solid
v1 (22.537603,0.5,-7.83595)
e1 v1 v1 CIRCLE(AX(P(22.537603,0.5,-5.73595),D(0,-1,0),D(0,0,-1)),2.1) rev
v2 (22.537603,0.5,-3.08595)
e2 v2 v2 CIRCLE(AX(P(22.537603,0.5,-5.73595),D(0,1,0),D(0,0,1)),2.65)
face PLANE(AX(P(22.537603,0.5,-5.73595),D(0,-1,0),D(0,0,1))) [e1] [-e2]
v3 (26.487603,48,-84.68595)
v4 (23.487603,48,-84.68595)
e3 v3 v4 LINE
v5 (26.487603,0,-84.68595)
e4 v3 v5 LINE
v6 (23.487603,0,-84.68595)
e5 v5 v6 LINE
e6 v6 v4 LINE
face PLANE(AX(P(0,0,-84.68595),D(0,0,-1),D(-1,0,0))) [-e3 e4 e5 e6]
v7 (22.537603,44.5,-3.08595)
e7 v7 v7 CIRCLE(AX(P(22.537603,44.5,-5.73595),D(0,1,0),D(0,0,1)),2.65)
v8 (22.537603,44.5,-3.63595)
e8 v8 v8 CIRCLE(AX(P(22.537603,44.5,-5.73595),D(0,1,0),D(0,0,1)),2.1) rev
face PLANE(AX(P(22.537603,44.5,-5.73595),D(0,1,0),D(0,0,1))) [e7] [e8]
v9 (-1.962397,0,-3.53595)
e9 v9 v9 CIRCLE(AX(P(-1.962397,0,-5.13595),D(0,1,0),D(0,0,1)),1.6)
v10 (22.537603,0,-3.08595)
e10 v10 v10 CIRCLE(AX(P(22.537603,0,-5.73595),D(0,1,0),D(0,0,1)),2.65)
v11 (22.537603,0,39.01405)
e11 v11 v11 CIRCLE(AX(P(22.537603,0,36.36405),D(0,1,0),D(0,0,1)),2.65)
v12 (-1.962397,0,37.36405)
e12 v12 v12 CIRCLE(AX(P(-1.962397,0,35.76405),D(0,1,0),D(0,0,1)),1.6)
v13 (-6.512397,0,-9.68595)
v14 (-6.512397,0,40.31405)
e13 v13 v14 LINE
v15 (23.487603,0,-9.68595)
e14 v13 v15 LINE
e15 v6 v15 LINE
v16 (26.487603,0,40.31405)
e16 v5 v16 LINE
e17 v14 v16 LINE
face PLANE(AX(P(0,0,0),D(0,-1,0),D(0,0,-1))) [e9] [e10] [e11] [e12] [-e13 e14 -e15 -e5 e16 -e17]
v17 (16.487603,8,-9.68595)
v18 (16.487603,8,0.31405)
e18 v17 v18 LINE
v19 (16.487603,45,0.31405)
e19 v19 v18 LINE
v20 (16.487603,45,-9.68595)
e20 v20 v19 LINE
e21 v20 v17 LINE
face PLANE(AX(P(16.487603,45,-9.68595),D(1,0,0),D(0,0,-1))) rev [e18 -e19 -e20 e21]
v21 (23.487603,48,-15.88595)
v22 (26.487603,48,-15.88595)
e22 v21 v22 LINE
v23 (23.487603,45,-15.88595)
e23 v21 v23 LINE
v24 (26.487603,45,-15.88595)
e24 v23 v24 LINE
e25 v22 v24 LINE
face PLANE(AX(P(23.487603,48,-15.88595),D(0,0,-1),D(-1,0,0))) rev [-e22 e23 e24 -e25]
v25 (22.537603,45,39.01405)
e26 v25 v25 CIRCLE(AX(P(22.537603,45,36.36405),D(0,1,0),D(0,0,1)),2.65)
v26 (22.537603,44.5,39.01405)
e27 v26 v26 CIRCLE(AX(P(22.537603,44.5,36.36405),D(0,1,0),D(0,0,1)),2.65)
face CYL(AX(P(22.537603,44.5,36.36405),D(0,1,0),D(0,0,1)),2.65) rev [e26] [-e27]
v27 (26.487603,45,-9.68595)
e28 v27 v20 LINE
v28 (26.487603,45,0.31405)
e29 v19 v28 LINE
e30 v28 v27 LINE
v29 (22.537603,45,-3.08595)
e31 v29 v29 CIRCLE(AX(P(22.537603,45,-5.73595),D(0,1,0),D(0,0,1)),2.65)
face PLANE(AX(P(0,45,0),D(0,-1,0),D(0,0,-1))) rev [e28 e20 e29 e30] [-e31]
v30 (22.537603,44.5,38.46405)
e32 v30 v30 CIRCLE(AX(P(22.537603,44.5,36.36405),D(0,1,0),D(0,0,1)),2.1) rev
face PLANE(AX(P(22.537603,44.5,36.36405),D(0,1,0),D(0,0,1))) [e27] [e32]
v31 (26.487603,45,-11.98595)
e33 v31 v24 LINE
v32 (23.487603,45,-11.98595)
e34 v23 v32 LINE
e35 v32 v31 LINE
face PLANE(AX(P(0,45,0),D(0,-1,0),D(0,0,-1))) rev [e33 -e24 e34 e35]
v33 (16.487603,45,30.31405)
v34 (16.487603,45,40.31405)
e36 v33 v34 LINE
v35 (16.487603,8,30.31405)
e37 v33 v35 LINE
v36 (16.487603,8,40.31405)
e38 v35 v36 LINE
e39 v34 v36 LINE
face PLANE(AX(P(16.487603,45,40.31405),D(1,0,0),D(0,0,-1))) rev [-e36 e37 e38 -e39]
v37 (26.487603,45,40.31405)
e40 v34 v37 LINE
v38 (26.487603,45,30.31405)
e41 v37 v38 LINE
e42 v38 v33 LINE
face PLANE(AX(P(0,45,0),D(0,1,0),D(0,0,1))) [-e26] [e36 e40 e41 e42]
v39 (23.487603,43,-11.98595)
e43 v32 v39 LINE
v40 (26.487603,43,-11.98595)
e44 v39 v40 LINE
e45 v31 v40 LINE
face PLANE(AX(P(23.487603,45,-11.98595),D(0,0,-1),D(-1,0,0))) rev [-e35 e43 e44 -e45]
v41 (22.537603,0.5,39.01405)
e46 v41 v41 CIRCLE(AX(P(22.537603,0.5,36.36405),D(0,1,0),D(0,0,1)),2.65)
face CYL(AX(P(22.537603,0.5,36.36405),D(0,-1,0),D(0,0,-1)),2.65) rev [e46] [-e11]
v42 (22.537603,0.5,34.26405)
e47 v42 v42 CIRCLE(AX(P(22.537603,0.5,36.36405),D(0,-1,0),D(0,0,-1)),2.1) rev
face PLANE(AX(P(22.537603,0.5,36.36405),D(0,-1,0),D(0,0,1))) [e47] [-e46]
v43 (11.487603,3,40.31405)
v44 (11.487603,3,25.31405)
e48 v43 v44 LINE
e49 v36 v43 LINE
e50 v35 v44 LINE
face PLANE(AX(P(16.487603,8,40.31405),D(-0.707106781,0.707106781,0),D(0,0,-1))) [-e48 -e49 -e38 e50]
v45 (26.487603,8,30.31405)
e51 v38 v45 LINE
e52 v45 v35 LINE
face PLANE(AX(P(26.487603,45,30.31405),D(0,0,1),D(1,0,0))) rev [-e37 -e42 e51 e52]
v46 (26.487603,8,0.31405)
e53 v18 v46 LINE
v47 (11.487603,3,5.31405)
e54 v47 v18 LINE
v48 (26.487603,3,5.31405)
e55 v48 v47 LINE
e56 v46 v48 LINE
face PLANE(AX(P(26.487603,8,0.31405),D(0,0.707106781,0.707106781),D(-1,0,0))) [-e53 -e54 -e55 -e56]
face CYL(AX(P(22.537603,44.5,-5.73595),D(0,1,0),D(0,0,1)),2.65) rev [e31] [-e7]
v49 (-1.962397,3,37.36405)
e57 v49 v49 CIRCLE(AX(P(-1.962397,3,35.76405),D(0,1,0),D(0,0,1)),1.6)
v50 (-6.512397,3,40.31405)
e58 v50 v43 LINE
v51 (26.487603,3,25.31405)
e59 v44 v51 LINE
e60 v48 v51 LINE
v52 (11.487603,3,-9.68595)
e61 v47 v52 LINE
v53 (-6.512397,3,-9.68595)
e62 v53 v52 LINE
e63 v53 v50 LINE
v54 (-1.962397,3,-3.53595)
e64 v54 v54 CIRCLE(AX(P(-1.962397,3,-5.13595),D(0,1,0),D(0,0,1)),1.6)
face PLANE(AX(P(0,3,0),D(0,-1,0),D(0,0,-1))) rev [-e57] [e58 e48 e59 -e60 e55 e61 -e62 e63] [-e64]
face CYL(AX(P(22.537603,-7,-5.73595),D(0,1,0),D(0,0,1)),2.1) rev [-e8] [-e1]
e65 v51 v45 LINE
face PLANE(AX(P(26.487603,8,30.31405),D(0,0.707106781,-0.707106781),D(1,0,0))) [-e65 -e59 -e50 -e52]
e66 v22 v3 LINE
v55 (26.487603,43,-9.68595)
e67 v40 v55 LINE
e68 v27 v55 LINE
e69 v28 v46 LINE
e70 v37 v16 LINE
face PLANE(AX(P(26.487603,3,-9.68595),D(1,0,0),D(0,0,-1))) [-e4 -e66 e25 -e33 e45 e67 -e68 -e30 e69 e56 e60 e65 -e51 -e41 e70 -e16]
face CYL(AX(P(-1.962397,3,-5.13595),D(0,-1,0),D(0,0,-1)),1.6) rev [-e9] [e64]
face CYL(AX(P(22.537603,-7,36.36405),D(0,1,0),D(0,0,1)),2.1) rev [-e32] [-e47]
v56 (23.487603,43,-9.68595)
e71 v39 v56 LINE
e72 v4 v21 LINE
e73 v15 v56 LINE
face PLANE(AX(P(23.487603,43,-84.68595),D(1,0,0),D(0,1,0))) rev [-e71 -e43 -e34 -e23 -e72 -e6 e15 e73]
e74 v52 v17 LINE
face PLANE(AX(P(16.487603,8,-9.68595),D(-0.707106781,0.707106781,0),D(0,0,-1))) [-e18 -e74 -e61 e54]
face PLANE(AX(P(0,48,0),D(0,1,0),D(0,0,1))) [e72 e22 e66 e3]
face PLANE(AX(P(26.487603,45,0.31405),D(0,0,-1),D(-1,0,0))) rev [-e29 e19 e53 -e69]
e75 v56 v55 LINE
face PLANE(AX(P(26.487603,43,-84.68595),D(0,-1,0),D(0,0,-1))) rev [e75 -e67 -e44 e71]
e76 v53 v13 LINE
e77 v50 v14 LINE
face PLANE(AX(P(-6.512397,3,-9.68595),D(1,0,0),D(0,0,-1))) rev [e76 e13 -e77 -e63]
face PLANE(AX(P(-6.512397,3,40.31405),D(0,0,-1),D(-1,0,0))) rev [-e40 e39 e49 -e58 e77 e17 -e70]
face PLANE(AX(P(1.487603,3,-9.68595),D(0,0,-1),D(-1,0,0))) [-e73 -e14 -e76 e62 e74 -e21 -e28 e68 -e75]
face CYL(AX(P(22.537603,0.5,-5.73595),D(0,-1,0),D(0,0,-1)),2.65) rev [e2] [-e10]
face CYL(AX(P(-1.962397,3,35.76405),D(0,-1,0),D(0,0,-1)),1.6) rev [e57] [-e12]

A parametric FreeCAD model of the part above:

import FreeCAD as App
import Part
import Sketcher
from FreeCAD import Vector


def edges_at(feature, points):
    """Names of the edges that pass closest to the given points."""
    edges = feature.Shape.Edges
    near = lambda p: min(range(len(edges)), key=lambda i: edges[i].distToShape(Part.Vertex(*p))[0])
    return sorted({f"Edge{near(p) + 1}" for p in points})


def add_polygon(sketch, points):
    """Adds a closed chain of lines whose ends are joined by coincident constraints."""
    first, n = sketch.GeometryCount, len(points)
    for a, b in zip(points, points[1:] + points[:1]):
        sketch.addGeometry(Part.LineSegment(App.Vector(*a, 0), App.Vector(*b, 0)), False)
    for i in range(n):
        sketch.addConstraint(Sketcher.Constraint("Coincident", first + i, 2, first + (i + 1) % n, 1))

doc = App.newDocument("Part")
params = doc.addObject("Spreadsheet::Sheet", "Params")
for row, (alias, value) in enumerate([
    ("sketch1_diameter", "3.2 mm"),
    ("sketch1_width", "33 mm"),
    ("sketch1_height", "50 mm"),
    ("pad1_length", "3 mm"),
    ("sketch2_width", "10 mm"),
    ("pad2_length", "42 mm"),
    ("chamfer_size", "5 mm"),
    ("sketch3_diameter", "4.2 mm"),
    ("pocket1_length", "52 mm"),
    ("sketch4_diameter", "5.3 mm"),
    ("pocket2_length", "0.5 mm"),
    ("sketch5_width", "3 mm"),
    ("sketch5_height", "43 mm"),
    ("pad3_length", "75 mm"),
    ("sketch6_width", "3 mm"),
    ("sketch6_height", "72.7 mm"),
    ("pad4_length", "2 mm"),
    ("sketch7_width", "3 mm"),
    ("sketch7_height", "68.8 mm"),
    ("pad5_length", "3 mm"),
], start=1):
    params.set(f"A{row}", alias)
    params.set(f"B{row}", "=" + value)
    params.setAlias(f"B{row}", alias)

body = doc.addObject("PartDesign::Body", "Body")

sketch1 = doc.addObject("Sketcher::SketchObject", "Sketch")
body.addObject(sketch1)
sketch1.AttachmentSupport = (doc.XZ_Plane, [""])
sketch1.MapMode = "FlatFace"
add_polygon(sketch1, [(26.5, -9.7), (-6.5, -9.7), (-6.5, 40.3), (26.5, 40.3)])
sketch1.addGeometry(Part.Circle(Vector(-2, 35.8, 0), Vector(0, 0, 1), 1.6), False)
sketch1.addGeometry(Part.Circle(Vector(-2, -5.1, 0), Vector(0, 0, 1), 1.6), False)
sketch1.addConstraint(Sketcher.Constraint("Horizontal", 0))
sketch1.addConstraint(Sketcher.Constraint("Vertical", 1))
sketch1.addConstraint(Sketcher.Constraint("Horizontal", 2))
sketch1.addConstraint(Sketcher.Constraint("Vertical", 3))
sketch1.addConstraint(Sketcher.Constraint("Equal", 4, 5))
sketch1.addConstraint(Sketcher.Constraint("Vertical", 4, 3, 5, 3))
sketch1.addConstraint(Sketcher.Constraint("Diameter", 4, 3.2))
sketch1.addConstraint(Sketcher.Constraint("DistanceX", 0, 2, 0, 1, 33.0))
sketch1.addConstraint(Sketcher.Constraint("DistanceY", 1, 1, 1, 2, 50.0))
sketch1.addConstraint(Sketcher.Constraint("DistanceY", 5, 3, 4, 3, 40.9))
sketch1.addConstraint(Sketcher.Constraint("DistanceX", 0, 2, 5, 3, 4.55))
sketch1.addConstraint(Sketcher.Constraint("DistanceY", 0, 2, 5, 3, 4.55))
sketch1.addConstraint(Sketcher.Constraint("DistanceY", -1, 1, 4, 3, 35.76405))
sketch1.addConstraint(Sketcher.Constraint("DistanceX", 4, 3, -1, 1, 1.962397))
sketch1.setExpression("Constraints[10]", "Params.sketch1_diameter")
sketch1.setExpression("Constraints[11]", "Params.sketch1_width")
sketch1.setExpression("Constraints[12]", "Params.sketch1_height")
pad1 = doc.addObject("PartDesign::Pad", "Pad")
body.addObject(pad1)
pad1.Profile = sketch1
pad1.setExpression("Length", "Params.pad1_length")
pad1.Reversed = True

sketch2 = doc.addObject("Sketcher::SketchObject", "Sketch001")
body.addObject(sketch2)
sketch2.AttachmentSupport = (doc.XZ_Plane, [""])
sketch2.MapMode = "FlatFace"
sketch2.AttachmentOffset = App.Placement(Vector(0, 0, -3), App.Rotation())
add_polygon(sketch2, [(16, 30), (16, 40), (26, 40), (26, 30)])
add_polygon(sketch2, [(16, -10), (16, 0), (26, 0), (26, -10)])
sketch2.addConstraint(Sketcher.Constraint("Vertical", 0))
sketch2.addConstraint(Sketcher.Constraint("Horizontal", 1))
sketch2.addConstraint(Sketcher.Constraint("Vertical", 2))
sketch2.addConstraint(Sketcher.Constraint("Horizontal", 3))
sketch2.addConstraint(Sketcher.Constraint("Vertical", 4))
sketch2.addConstraint(Sketcher.Constraint("Horizontal", 5))
sketch2.addConstraint(Sketcher.Constraint("Vertical", 6))
sketch2.addConstraint(Sketcher.Constraint("Horizontal", 7))
sketch2.addConstraint(Sketcher.Constraint("Vertical", 3, 2, 4, 2))
sketch2.addConstraint(Sketcher.Constraint("Vertical", 2, 2, 5, 2))
sketch2.addConstraint(Sketcher.Constraint("Equal", 7, 0))
sketch2.addConstraint(Sketcher.Constraint("Equal", 2, 4))
sketch2.addConstraint(Sketcher.Constraint("DistanceX", 1, 1, 1, 2, 10.0))
sketch2.addConstraint(Sketcher.Constraint("DistanceY", 4, 2, 3, 2, 30.0))
sketch2.addConstraint(Sketcher.Constraint("DistanceY", -1, 1, 0, 2, 40.31405))
sketch2.addConstraint(Sketcher.Constraint("DistanceX", -1, 1, 0, 2, 16.487603))
sketch2.setExpression("Constraints[20]", "Params.sketch2_width")
pad2 = doc.addObject("PartDesign::Pad", "Pad001")
body.addObject(pad2)
pad2.Profile = sketch2
pad2.setExpression("Length", "Params.pad2_length")
pad2.Reversed = True
doc.recompute()

chamfer = doc.addObject("PartDesign::Chamfer", "Chamfer")
body.addObject(chamfer)
chamfer.Base = (pad2, edges_at(pad2, [
    (21.488, 3, 30.314),
    (16.488, 3, 35.314),
    (16.488, 3, -4.686),
    (21.488, 3, 0.314),
]))
chamfer.setExpression("Size", "Params.chamfer_size")

sketch3 = doc.addObject("Sketcher::SketchObject", "Sketch002")
body.addObject(sketch3)
sketch3.AttachmentSupport = (doc.XZ_Plane, [""])
sketch3.MapMode = "FlatFace"
sketch3.AttachmentOffset = App.Placement(Vector(0, 0, -45), App.Rotation())
sketch3.addGeometry(Part.Circle(Vector(22.5, 36.4, 0), Vector(0, 0, 1), 2.1), False)
sketch3.addGeometry(Part.Circle(Vector(22.5, -5.7, 0), Vector(0, 0, 1), 2.1), False)
sketch3.addConstraint(Sketcher.Constraint("Equal", 0, 1))
sketch3.addConstraint(Sketcher.Constraint("Vertical", 0, 3, 1, 3))
sketch3.addConstraint(Sketcher.Constraint("Diameter", 0, 4.2))
sketch3.addConstraint(Sketcher.Constraint("DistanceY", 1, 3, 0, 3, 42.1))
sketch3.addConstraint(Sketcher.Constraint("DistanceY", -1, 1, 0, 3, 36.36405))
sketch3.addConstraint(Sketcher.Constraint("DistanceX", -1, 1, 0, 3, 22.537603))
sketch3.setExpression("Constraints[2]", "Params.sketch3_diameter")
pocket1 = doc.addObject("PartDesign::Pocket", "Pocket")
body.addObject(pocket1)
pocket1.Profile = sketch3
pocket1.setExpression("Length", "Params.pocket1_length")
pocket1.Reversed = True

sketch4 = doc.addObject("Sketcher::SketchObject", "Sketch003")
body.addObject(sketch4)
sketch4.AttachmentSupport = (doc.XZ_Plane, [""])
sketch4.MapMode = "FlatFace"
sketch4.AttachmentOffset = App.Placement(Vector(0, 0, -45), App.Rotation())
sketch4.addGeometry(Part.Circle(Vector(22.5, 36.4, 0), Vector(0, 0, 1), 2.6), False)
sketch4.addGeometry(Part.Circle(Vector(22.5, -5.7, 0), Vector(0, 0, 1), 2.6), False)
sketch4.addConstraint(Sketcher.Constraint("Equal", 0, 1))
sketch4.addConstraint(Sketcher.Constraint("Vertical", 0, 3, 1, 3))
sketch4.addConstraint(Sketcher.Constraint("Diameter", 0, 5.3))
sketch4.addConstraint(Sketcher.Constraint("DistanceY", 1, 3, 0, 3, 42.1))
sketch4.addConstraint(Sketcher.Constraint("DistanceY", -1, 1, 0, 3, 36.36405))
sketch4.addConstraint(Sketcher.Constraint("DistanceX", -1, 1, 0, 3, 22.537603))
sketch4.setExpression("Constraints[2]", "Params.sketch4_diameter")
pocket2 = doc.addObject("PartDesign::Pocket", "Pocket001")
body.addObject(pocket2)
pocket2.Profile = sketch4
pocket2.setExpression("Length", "Params.pocket2_length")
pocket2.Reversed = True
doc.recompute()

datumplane = doc.addObject("PartDesign::Plane", "DatumPlane")
body.addObject(datumplane)
datumplane.AttachmentSupport = (doc.XZ_Plane, [""])
datumplane.MapMode = "FlatFace"
datumplane.AttachmentOffset = App.Placement(Vector(0, 0, -22.5), App.Rotation())
mirrored = doc.addObject("PartDesign::Mirrored", "Mirrored")
body.addObject(mirrored)
mirrored.Originals = [pocket2]
mirrored.MirrorPlane = (datumplane, [""])
body.Tip = mirrored

sketch5 = doc.addObject("Sketcher::SketchObject", "Sketch004")
body.addObject(sketch5)
sketch5.AttachmentSupport = (doc.XY_Plane, [""])
sketch5.MapMode = "FlatFace"
sketch5.AttachmentOffset = App.Placement(Vector(0, 0, -9.68595), App.Rotation())
add_polygon(sketch5, [(26.5, 43), (26.5, 0), (23.5, 0), (23.5, 43)])
sketch5.addConstraint(Sketcher.Constraint("Vertical", 0))
sketch5.addConstraint(Sketcher.Constraint("Horizontal", 1))
sketch5.addConstraint(Sketcher.Constraint("Vertical", 2))
sketch5.addConstraint(Sketcher.Constraint("Horizontal", 3))
sketch5.addConstraint(Sketcher.Constraint("PointOnObject", 0, 2, -1))
sketch5.addConstraint(Sketcher.Constraint("DistanceX", 1, 2, 1, 1, 3.0))
sketch5.addConstraint(Sketcher.Constraint("DistanceY", 0, 2, 0, 1, 43.0))
sketch5.addConstraint(Sketcher.Constraint("DistanceX", -1, 1, 0, 2, 26.487603))
sketch5.setExpression("Constraints[9]", "Params.sketch5_width")
sketch5.setExpression("Constraints[10]", "Params.sketch5_height")
pad3 = doc.addObject("PartDesign::Pad", "Pad002")
body.addObject(pad3)
pad3.Profile = sketch5
pad3.setExpression("Length", "Params.pad3_length")
pad3.Reversed = True

sketch6 = doc.addObject("Sketcher::SketchObject", "Sketch005")
body.addObject(sketch6)
sketch6.AttachmentSupport = (doc.XZ_Plane, [""])
sketch6.MapMode = "FlatFace"
sketch6.AttachmentOffset = App.Placement(Vector(0, 0, -43), App.Rotation())
add_polygon(sketch6, [(23.5, -84.7), (23.5, -12), (26.5, -12), (26.5, -84.7)])
sketch6.addConstraint(Sketcher.Constraint("Vertical", 0))
sketch6.addConstraint(Sketcher.Constraint("Horizontal", 1))
sketch6.addConstraint(Sketcher.Constraint("Vertical", 2))
sketch6.addConstraint(Sketcher.Constraint("Horizontal", 3))
sketch6.addConstraint(Sketcher.Constraint("DistanceX", 1, 1, 1, 2, 3.0))
sketch6.addConstraint(Sketcher.Constraint("DistanceY", 0, 1, 0, 2, 72.7))
sketch6.addConstraint(Sketcher.Constraint("DistanceY", 0, 2, -1, 1, 11.98595))
sketch6.addConstraint(Sketcher.Constraint("DistanceX", -1, 1, 0, 2, 23.487603))
sketch6.setExpression("Constraints[8]", "Params.sketch6_width")
sketch6.setExpression("Constraints[9]", "Params.sketch6_height")
pad4 = doc.addObject("PartDesign::Pad", "Pad003")
body.addObject(pad4)
pad4.Profile = sketch6
pad4.setExpression("Length", "Params.pad4_length")
pad4.Reversed = True

sketch7 = doc.addObject("Sketcher::SketchObject", "Sketch006")
body.addObject(sketch7)
sketch7.AttachmentSupport = (doc.XZ_Plane, [""])
sketch7.MapMode = "FlatFace"
sketch7.AttachmentOffset = App.Placement(Vector(0, 0, -45), App.Rotation())
add_polygon(sketch7, [(23.5, -84.7), (23.5, -15.9), (26.5, -15.9), (26.5, -84.7)])
sketch7.addConstraint(Sketcher.Constraint("Vertical", 0))
sketch7.addConstraint(Sketcher.Constraint("Horizontal", 1))
sketch7.addConstraint(Sketcher.Constraint("Vertical", 2))
sketch7.addConstraint(Sketcher.Constraint("Horizontal", 3))
sketch7.addConstraint(Sketcher.Constraint("DistanceX", 1, 1, 1, 2, 3.0))
sketch7.addConstraint(Sketcher.Constraint("DistanceY", 0, 1, 0, 2, 68.8))
sketch7.addConstraint(Sketcher.Constraint("DistanceY", 0, 2, -1, 1, 15.88595))
sketch7.addConstraint(Sketcher.Constraint("DistanceX", -1, 1, 0, 2, 23.487603))
sketch7.setExpression("Constraints[8]", "Params.sketch7_width")
sketch7.setExpression("Constraints[9]", "Params.sketch7_height")
pad5 = doc.addObject("PartDesign::Pad", "Pad004")
body.addObject(pad5)
pad5.Profile = sketch7
pad5.setExpression("Length", "Params.pad5_length")
pad5.Reversed = True

doc.recompute()
